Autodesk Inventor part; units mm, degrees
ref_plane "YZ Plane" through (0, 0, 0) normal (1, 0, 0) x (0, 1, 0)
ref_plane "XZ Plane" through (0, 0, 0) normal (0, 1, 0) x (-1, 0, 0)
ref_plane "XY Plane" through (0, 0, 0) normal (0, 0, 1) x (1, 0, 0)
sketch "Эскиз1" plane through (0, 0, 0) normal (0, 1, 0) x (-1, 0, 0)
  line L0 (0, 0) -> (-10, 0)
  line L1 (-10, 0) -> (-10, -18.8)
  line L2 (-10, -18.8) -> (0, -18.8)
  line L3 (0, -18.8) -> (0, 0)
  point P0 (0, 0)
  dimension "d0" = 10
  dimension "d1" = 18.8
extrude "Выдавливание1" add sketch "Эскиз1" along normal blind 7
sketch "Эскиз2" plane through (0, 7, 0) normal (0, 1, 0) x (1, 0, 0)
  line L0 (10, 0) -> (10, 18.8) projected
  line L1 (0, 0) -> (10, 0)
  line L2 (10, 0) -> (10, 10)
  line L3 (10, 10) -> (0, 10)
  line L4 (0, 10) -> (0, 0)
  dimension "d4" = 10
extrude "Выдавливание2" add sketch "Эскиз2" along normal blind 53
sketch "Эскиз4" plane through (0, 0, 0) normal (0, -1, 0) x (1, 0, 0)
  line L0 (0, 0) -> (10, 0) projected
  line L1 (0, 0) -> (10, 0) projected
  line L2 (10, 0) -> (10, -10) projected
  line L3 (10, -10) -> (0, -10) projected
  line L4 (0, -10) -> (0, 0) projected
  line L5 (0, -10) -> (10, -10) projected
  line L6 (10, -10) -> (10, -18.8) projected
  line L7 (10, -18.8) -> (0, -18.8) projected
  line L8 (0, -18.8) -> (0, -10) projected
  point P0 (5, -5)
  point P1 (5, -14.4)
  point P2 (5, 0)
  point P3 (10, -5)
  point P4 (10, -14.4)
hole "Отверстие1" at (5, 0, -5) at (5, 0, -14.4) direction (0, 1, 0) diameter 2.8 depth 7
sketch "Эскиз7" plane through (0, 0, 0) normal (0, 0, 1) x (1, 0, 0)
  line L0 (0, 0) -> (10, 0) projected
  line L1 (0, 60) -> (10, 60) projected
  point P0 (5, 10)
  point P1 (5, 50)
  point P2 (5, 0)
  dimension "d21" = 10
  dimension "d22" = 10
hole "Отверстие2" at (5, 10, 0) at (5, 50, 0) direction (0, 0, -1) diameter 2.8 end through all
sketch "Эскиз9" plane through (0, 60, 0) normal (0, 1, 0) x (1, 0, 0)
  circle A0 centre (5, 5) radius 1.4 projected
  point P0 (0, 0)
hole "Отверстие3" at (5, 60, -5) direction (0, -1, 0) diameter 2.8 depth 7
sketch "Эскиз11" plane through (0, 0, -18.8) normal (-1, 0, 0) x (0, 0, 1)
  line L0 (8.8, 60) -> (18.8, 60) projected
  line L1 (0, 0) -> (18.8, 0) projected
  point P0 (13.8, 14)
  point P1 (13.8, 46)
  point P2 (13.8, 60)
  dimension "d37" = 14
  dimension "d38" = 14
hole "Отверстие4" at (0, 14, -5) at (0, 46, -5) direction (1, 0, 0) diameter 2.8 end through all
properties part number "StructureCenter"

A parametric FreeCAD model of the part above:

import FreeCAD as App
import Part
import Sketcher
Q = App.Units.Quantity


def add_polygon(sketch, points):
    """Adds a closed chain of lines whose ends are joined by coincident constraints."""
    first, n = sketch.GeometryCount, len(points)
    for a, b in zip(points, points[1:] + points[:1]):
        sketch.addGeometry(Part.LineSegment(App.Vector(*a, 0), App.Vector(*b, 0)), False)
    for i in range(n):
        sketch.addConstraint(Sketcher.Constraint("Coincident", first + i, 2, first + (i + 1) % n, 1))

doc = App.newDocument("Part")
body = doc.addObject("PartDesign::Body", "Body")

# Sketch on XZ plane
sketch1 = body.newObject("Sketcher::SketchObject", "Sketch")
sketch1.AttachmentSupport = (doc.getObject("XZ_Plane"), [""])
sketch1.MapMode = "FlatFace"
add_polygon(sketch1, [(0, -18.8), (0, 0), (10, 0), (10, -18.8)])  # lines 0-3
sketch1.addConstraint([
    Sketcher.Constraint("Vertical", 0),
    Sketcher.Constraint("Horizontal", 1),
    Sketcher.Constraint("Vertical", 2),
    Sketcher.Constraint("Horizontal", 3),
    Sketcher.Constraint("Coincident", 0, 2, -1, 1),
    Sketcher.Constraint("DistanceX", 1, 1, 1, 2, Q("10 mm")),
    Sketcher.Constraint("DistanceY", 0, 1, 0, 2, Q("18.8 mm")),
])
pad1 = body.newObject("PartDesign::Pad", "Pad")
pad1.Profile = sketch1
pad1.Length = 7
pad1.Reversed = True

# Sketch on XZ plane
sketch2 = body.newObject("Sketcher::SketchObject", "Sketch001")
sketch2.AttachmentSupport = (doc.getObject("XZ_Plane"), [""])
sketch2.MapMode = "FlatFace"
sketch2.AttachmentOffset = App.Placement(App.Vector(0, 0, -7), App.Rotation())
add_polygon(sketch2, [(0, 0), (10, 0), (10, -10), (0, -10)])  # lines 0-3
sketch2.addConstraint([
    Sketcher.Constraint("Horizontal", 0),
    Sketcher.Constraint("Vertical", 1),
    Sketcher.Constraint("Horizontal", 2),
    Sketcher.Constraint("Vertical", 3),
    Sketcher.Constraint("Coincident", 3, 2, -1, 1),
    Sketcher.Constraint("Equal", 2, 1),
    Sketcher.Constraint("DistanceX", 0, 1, 0, 2, Q("10 mm")),
])
pad2 = body.newObject("PartDesign::Pad", "Pad001")
pad2.Profile = sketch2
pad2.Length = 53
pad2.Reversed = True

# Sketch on XZ plane
sketch3 = body.newObject("Sketcher::SketchObject", "Sketch002")
sketch3.AttachmentSupport = (doc.getObject("XZ_Plane"), [""])
sketch3.MapMode = "FlatFace"
sketch3.addGeometry([
    Part.Circle(App.Vector(5, -5, 0), App.Vector(0, 0, 1), 1.4),
    Part.Circle(App.Vector(5, -14.4, 0), App.Vector(0, 0, 1), 1.4),
], False)
sketch3.addConstraint([
    Sketcher.Constraint("Equal", 0, 1),
    Sketcher.Constraint("Vertical", 0, 3, 1, 3),
    Sketcher.Constraint("Diameter", 0, Q("2.8 mm")),
    Sketcher.Constraint("DistanceX", -1, 1, 0, 3, Q("5 mm")),
    Sketcher.Constraint("DistanceY", 0, 3, -1, 1, Q("5 mm")),
    Sketcher.Constraint("DistanceY", 1, 3, -1, 1, Q("14.4 mm")),
])
doc.recompute()
hole = body.newObject("PartDesign::Hole", "Hole")
hole.Profile = sketch3
hole.ThreadType = "None"
hole.Diameter = 2.8
hole.DepthType = "Dimension"
hole.Depth = 7
hole.DrillPoint = "Flat"

# Sketch on XY plane
sketch4 = body.newObject("Sketcher::SketchObject", "Sketch003")
sketch4.AttachmentSupport = (doc.getObject("XY_Plane"), [""])
sketch4.MapMode = "FlatFace"
sketch4.addGeometry([
    Part.Circle(App.Vector(5, 10, 0), App.Vector(0, 0, 1), 1.4),
    Part.Circle(App.Vector(5, 50, 0), App.Vector(0, 0, 1), 1.4),
], False)
sketch4.addConstraint([
    Sketcher.Constraint("Equal", 0, 1),
    Sketcher.Constraint("Vertical", 0, 3, 1, 3),
    Sketcher.Constraint("Diameter", 0, Q("2.8 mm")),
    Sketcher.Constraint("DistanceX", -1, 1, 0, 3, Q("5 mm")),
    Sketcher.Constraint("DistanceY", -1, 1, 0, 3, Q("10 mm")),
    Sketcher.Constraint("DistanceY", -1, 1, 1, 3, Q("50 mm")),
])
doc.recompute()
hole2 = body.newObject("PartDesign::Hole", "Hole001")
hole2.Profile = sketch4
hole2.ThreadType = "None"
hole2.Diameter = 2.8
hole2.DepthType = "ThroughAll"

# Sketch on XZ plane
sketch5 = body.newObject("Sketcher::SketchObject", "Sketch004")
sketch5.AttachmentSupport = (doc.getObject("XZ_Plane"), [""])
sketch5.MapMode = "FlatFace"
sketch5.AttachmentOffset = App.Placement(App.Vector(0, 0, -60), App.Rotation())
sketch5.addGeometry(Part.Circle(App.Vector(5, -5, 0), App.Vector(0, 0, 1), 1.4), False)
sketch5.addConstraint([
    Sketcher.Constraint("Diameter", 0, Q("2.8 mm")),
    Sketcher.Constraint("DistanceX", -1, 1, 0, 3, Q("5 mm")),
    Sketcher.Constraint("DistanceY", 0, 3, -1, 1, Q("5 mm")),
])
doc.recompute()
hole3 = body.newObject("PartDesign::Hole", "Hole002")
hole3.Profile = sketch5
hole3.ThreadType = "None"
hole3.Diameter = 2.8
hole3.DepthType = "Dimension"
hole3.Depth = 7
hole3.DrillPoint = "Flat"
hole3.Reversed = True

# Sketch on YZ plane
sketch6 = body.newObject("Sketcher::SketchObject", "Sketch005")
sketch6.AttachmentSupport = (doc.getObject("YZ_Plane"), [""])
sketch6.MapMode = "FlatFace"
sketch6.addGeometry([
    Part.Circle(App.Vector(14, -5, 0), App.Vector(0, 0, 1), 1.4),
    Part.Circle(App.Vector(46, -5, 0), App.Vector(0, 0, 1), 1.4),
], False)
sketch6.addConstraint([
    Sketcher.Constraint("Equal", 0, 1),
    Sketcher.Constraint("Horizontal", 0, 3, 1, 3),
    Sketcher.Constraint("Diameter", 0, Q("2.8 mm")),
    Sketcher.Constraint("DistanceX", -1, 1, 0, 3, Q("14 mm")),
    Sketcher.Constraint("DistanceY", 0, 3, -1, 1, Q("5 mm")),
    Sketcher.Constraint("DistanceX", -1, 1, 1, 3, Q("46 mm")),
])
doc.recompute()
hole4 = body.newObject("PartDesign::Hole", "Hole003")
hole4.Profile = sketch6
hole4.ThreadType = "None"
hole4.Diameter = 2.8
hole4.DepthType = "ThroughAll"
hole4.Reversed = True

doc.recompute()
